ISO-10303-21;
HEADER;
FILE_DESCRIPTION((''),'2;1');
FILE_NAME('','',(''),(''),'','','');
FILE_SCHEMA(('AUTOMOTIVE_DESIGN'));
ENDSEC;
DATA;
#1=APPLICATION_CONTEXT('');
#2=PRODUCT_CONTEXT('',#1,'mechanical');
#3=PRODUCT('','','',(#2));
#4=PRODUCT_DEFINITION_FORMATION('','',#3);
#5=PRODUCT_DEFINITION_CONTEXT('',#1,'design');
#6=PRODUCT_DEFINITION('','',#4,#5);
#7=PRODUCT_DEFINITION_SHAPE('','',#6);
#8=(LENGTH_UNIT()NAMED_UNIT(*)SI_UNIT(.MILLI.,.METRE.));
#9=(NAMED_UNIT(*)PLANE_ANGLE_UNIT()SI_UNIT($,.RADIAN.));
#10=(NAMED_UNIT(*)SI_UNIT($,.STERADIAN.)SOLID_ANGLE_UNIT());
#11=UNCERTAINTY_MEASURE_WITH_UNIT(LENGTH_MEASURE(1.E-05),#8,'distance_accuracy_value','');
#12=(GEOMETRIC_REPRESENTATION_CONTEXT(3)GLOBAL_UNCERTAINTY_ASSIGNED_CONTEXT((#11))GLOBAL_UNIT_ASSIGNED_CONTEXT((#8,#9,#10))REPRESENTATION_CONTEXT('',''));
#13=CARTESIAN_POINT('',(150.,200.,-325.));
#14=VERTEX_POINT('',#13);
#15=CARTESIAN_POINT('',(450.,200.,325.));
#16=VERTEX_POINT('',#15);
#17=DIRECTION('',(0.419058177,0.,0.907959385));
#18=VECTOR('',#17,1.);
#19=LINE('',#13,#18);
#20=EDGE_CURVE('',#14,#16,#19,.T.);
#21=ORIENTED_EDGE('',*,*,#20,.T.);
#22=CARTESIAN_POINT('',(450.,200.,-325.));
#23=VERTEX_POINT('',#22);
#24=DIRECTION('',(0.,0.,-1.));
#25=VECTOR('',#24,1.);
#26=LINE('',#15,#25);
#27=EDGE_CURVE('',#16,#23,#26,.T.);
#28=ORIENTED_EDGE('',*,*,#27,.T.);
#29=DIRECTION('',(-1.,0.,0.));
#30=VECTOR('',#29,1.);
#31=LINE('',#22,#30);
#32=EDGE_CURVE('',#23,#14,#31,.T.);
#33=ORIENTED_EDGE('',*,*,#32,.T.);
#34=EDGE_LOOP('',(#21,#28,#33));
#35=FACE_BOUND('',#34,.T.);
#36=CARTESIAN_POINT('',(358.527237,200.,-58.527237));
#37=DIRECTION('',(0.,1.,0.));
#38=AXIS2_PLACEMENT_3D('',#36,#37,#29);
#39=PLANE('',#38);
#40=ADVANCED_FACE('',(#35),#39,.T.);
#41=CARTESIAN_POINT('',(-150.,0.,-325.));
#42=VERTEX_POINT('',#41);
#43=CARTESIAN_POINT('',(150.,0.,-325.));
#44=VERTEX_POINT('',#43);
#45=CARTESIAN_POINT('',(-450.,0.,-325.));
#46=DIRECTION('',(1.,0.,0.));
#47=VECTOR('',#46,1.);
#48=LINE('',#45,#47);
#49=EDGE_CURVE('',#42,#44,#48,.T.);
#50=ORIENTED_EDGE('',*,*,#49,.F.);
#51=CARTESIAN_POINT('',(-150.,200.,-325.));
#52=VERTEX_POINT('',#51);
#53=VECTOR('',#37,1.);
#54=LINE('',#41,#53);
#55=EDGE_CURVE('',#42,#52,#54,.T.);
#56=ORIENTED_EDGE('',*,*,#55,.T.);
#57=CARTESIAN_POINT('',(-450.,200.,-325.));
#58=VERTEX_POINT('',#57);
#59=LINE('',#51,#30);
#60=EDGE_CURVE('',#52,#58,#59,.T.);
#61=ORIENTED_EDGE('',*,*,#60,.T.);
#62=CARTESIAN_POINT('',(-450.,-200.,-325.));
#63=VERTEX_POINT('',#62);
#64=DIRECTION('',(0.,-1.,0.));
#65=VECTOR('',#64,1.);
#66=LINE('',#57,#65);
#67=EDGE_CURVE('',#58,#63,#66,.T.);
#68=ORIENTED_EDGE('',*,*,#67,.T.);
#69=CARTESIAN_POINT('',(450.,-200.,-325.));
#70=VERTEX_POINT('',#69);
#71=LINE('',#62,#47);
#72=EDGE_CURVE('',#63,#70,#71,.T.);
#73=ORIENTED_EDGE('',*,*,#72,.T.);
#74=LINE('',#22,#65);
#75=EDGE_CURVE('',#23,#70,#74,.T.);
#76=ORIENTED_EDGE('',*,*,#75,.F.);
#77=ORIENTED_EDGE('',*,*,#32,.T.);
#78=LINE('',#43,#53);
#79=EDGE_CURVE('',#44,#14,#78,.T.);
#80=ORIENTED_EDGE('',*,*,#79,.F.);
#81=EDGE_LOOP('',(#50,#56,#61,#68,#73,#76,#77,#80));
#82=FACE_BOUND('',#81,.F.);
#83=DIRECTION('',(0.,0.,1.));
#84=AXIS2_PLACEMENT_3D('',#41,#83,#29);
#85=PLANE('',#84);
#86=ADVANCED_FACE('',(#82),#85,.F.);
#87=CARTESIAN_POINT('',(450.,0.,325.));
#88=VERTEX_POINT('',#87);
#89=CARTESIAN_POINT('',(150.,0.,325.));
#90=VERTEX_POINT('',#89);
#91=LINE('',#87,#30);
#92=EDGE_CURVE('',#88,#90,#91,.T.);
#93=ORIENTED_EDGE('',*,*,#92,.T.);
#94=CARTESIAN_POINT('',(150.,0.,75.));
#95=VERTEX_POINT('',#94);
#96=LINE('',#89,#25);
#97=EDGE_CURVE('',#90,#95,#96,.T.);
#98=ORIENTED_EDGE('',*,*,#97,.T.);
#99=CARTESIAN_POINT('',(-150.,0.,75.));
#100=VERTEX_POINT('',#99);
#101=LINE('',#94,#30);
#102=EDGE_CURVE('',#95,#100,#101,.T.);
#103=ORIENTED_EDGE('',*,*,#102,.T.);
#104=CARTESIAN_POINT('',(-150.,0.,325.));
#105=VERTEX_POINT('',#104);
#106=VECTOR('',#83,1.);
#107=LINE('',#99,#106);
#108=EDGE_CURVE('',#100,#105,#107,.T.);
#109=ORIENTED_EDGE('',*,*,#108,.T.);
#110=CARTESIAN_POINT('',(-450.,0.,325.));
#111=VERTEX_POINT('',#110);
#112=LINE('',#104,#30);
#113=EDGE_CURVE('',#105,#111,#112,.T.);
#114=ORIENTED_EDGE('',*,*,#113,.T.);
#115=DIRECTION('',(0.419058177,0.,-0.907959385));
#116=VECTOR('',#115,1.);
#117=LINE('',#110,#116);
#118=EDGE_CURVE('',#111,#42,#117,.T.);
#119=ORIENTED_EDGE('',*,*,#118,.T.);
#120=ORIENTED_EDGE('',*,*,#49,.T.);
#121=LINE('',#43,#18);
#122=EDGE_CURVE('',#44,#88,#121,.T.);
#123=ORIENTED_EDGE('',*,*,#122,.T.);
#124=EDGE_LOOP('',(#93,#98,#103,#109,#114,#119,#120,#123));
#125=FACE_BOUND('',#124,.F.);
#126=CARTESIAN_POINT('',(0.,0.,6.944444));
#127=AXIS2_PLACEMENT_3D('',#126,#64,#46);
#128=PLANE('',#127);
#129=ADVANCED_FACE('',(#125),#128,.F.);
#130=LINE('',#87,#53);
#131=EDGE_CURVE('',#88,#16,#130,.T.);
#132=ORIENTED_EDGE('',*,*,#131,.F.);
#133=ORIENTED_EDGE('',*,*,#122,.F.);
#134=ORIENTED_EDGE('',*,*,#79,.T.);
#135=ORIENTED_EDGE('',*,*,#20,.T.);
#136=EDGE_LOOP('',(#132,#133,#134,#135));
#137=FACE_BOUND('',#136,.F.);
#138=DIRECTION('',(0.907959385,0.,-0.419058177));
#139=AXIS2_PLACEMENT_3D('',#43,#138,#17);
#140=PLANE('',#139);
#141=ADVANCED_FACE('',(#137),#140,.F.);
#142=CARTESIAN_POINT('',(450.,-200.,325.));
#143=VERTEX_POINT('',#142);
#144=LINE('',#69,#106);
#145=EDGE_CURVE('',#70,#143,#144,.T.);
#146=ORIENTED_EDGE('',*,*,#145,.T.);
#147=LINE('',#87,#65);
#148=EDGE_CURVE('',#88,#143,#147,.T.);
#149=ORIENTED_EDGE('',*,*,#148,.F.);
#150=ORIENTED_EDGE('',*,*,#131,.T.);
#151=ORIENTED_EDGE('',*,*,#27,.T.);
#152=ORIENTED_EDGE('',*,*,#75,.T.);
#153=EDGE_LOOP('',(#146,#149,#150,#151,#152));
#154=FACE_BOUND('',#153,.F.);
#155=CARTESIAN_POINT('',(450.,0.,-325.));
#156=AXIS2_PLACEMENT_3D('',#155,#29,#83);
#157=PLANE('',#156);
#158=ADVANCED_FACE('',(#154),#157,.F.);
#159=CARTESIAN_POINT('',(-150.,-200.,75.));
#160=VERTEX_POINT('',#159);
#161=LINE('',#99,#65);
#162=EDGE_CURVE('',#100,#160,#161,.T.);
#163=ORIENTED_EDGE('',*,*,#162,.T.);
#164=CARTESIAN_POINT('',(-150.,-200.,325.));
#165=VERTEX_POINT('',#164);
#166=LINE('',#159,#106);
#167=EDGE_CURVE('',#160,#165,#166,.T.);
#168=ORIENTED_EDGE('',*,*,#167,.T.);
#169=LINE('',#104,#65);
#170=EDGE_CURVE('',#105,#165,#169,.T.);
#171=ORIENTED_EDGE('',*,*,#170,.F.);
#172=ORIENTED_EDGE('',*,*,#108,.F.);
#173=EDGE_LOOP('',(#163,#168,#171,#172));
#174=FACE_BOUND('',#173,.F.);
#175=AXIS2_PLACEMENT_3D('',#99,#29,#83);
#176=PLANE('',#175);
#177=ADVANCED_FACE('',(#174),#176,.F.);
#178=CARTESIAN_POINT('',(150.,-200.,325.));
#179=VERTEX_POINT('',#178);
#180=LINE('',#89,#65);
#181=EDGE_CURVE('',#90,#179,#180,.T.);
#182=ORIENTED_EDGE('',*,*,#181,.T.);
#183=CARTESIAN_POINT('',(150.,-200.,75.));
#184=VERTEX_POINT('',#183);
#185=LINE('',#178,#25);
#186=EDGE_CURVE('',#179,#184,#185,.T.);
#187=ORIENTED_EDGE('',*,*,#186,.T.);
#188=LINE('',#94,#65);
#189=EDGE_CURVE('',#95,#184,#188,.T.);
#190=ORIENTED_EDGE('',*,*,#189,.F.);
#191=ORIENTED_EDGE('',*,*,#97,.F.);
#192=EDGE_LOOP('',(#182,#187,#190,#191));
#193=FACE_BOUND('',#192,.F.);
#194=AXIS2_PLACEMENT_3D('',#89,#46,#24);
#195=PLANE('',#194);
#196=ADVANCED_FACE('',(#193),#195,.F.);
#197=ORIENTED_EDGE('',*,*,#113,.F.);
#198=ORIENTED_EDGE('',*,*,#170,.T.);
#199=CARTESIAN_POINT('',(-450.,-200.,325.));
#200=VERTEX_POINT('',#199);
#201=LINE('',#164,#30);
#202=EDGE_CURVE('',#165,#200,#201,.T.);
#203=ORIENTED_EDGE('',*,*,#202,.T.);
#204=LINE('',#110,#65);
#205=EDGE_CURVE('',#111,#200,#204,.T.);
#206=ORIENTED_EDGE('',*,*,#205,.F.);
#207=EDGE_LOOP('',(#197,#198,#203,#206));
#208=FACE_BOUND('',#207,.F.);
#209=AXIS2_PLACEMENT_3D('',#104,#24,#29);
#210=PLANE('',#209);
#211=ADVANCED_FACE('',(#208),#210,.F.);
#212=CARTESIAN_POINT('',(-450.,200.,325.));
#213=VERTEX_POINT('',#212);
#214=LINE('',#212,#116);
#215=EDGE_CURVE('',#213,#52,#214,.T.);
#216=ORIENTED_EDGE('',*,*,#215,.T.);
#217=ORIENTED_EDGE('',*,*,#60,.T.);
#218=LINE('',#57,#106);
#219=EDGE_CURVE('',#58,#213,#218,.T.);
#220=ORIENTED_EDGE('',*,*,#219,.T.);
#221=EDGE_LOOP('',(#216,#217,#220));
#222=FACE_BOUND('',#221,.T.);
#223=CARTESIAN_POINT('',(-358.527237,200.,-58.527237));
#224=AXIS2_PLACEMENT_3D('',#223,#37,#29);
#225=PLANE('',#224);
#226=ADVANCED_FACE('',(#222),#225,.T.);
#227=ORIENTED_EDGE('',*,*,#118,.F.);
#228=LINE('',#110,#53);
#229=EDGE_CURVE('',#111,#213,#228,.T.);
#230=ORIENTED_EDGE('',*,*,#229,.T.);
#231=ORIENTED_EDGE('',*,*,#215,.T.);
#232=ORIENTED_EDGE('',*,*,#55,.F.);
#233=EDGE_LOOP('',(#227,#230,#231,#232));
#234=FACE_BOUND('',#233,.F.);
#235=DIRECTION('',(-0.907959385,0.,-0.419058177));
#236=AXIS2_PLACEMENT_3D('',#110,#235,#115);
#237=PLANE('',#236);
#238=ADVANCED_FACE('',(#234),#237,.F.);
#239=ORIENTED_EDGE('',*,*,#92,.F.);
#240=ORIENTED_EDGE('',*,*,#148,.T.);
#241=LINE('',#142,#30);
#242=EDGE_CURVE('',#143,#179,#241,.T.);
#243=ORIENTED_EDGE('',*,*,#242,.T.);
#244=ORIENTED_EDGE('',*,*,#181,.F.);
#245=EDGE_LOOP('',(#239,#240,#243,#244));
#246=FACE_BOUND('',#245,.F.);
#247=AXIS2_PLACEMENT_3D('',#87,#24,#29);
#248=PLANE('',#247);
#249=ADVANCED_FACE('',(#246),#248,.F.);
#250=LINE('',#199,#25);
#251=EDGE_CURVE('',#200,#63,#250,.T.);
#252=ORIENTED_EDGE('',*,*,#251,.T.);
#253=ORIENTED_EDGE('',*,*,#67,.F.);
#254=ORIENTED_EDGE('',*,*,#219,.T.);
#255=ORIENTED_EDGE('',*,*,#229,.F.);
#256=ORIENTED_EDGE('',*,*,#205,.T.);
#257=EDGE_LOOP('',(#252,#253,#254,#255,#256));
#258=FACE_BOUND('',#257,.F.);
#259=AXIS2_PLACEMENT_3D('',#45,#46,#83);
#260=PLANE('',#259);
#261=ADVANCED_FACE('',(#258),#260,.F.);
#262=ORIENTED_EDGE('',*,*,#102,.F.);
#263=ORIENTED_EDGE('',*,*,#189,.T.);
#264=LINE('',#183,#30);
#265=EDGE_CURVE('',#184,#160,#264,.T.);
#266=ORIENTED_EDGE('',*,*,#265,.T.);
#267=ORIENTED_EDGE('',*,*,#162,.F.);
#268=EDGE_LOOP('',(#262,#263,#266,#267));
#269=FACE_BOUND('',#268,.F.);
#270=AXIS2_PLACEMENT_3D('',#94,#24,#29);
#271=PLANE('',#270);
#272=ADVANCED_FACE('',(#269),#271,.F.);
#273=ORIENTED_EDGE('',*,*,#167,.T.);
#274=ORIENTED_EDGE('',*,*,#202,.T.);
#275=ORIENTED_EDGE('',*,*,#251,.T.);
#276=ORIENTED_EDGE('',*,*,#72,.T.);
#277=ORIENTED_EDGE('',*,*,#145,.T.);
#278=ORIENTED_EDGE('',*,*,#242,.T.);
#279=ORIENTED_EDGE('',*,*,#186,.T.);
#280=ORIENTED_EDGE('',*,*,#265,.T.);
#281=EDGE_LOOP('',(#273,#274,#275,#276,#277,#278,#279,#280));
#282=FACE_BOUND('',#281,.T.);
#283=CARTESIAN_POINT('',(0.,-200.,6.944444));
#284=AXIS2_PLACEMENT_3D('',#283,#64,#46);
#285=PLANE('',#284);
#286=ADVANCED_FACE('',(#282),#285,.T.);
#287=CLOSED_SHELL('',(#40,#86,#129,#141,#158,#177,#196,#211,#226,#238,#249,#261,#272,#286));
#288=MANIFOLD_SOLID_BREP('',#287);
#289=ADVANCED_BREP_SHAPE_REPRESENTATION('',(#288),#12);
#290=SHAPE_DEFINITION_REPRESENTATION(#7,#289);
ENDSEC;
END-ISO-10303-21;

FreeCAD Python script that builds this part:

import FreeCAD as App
import Part
import Sketcher

V = App.Vector
Q = App.Units.Quantity

doc = App.newDocument("Part")
body = doc.addObject("PartDesign::Body", "Body")

# Sketch on XZ plane
sketch1 = body.newObject("Sketcher::SketchObject", "Sketch")
sketch1.AttachmentSupport = (doc.getObject("XZ_Plane"), [""])
sketch1.MapMode = "FlatFace"
sketch1.addGeometry(Part.LineSegment(V(-150, 325, 0), V(-450, 325, 0)), False)
sketch1.addGeometry(Part.LineSegment(V(-450, 325, 0), V(-450, -325, 0)), False)
sketch1.addGeometry(Part.LineSegment(V(-450, -325, 0), V(450, -325, 0)), False)
sketch1.addGeometry(Part.LineSegment(V(450, -325, 0), V(450, 325, 0)), False)
sketch1.addGeometry(Part.LineSegment(V(450, 325, 0), V(150, 325, 0)), False)
sketch1.addGeometry(Part.LineSegment(V(150, 325, 0), V(150, 75, 0)), False)
sketch1.addGeometry(Part.LineSegment(V(150, 75, 0), V(-150, 75, 0)), False)
sketch1.addGeometry(Part.LineSegment(V(-150, 75, 0), V(-150, 325, 0)), False)
sketch1.addConstraint(Sketcher.Constraint("Coincident", 0, 2, 1, 1))
sketch1.addConstraint(Sketcher.Constraint("Coincident", 1, 2, 2, 1))
sketch1.addConstraint(Sketcher.Constraint("Coincident", 2, 2, 3, 1))
sketch1.addConstraint(Sketcher.Constraint("Coincident", 3, 2, 4, 1))
sketch1.addConstraint(Sketcher.Constraint("Coincident", 4, 2, 5, 1))
sketch1.addConstraint(Sketcher.Constraint("Coincident", 5, 2, 6, 1))
sketch1.addConstraint(Sketcher.Constraint("Coincident", 6, 2, 7, 1))
sketch1.addConstraint(Sketcher.Constraint("Coincident", 7, 2, 0, 1))
sketch1.addConstraint(Sketcher.Constraint("Horizontal", 0))
sketch1.addConstraint(Sketcher.Constraint("Vertical", 1))
sketch1.addConstraint(Sketcher.Constraint("Horizontal", 2))
sketch1.addConstraint(Sketcher.Constraint("Vertical", 3))
sketch1.addConstraint(Sketcher.Constraint("Horizontal", 4))
sketch1.addConstraint(Sketcher.Constraint("Vertical", 5))
sketch1.addConstraint(Sketcher.Constraint("Horizontal", 6))
sketch1.addConstraint(Sketcher.Constraint("Vertical", 7))
sketch1.addConstraint(Sketcher.Constraint("Symmetric", 0, 2, 2, 2, -1, 1))
sketch1.addConstraint(Sketcher.Constraint("Symmetric", 4, 2, 7, 2, -2))
sketch1.addConstraint(Sketcher.Constraint("Equal", 4, 6))
sketch1.addConstraint(Sketcher.Constraint("DistanceX", 0, 2, 0, 1, Q("300 mm")))
sketch1.addConstraint(Sketcher.Constraint("DistanceY", 1, 2, 1, 1, Q("650 mm")))
sketch1.addConstraint(Sketcher.Constraint("DistanceY", 5, 2, 5, 1, Q("250 mm")))
pad1 = body.newObject("PartDesign::Pad", "Pad")
pad1.Profile = sketch1
pad1.Length = 200

# Sketch on XZ plane
sketch2 = body.newObject("Sketcher::SketchObject", "Sketch001")
sketch2.AttachmentSupport = (doc.getObject("XZ_Plane"), [""])
sketch2.MapMode = "FlatFace"
sketch2.addGeometry(Part.LineSegment(V(-450, -325, 0), V(-450, 325, 0)), False)
sketch2.addGeometry(Part.LineSegment(V(-450, 325, 0), V(-150, -325, 0)), False)
sketch2.addGeometry(Part.LineSegment(V(-150, -325, 0), V(-450, -325, 0)), False)
sketch2.addGeometry(Part.LineSegment(V(150, -325, 0), V(450, 325, 0)), False)
sketch2.addGeometry(Part.LineSegment(V(450, 325, 0), V(450, -325, 0)), False)
sketch2.addGeometry(Part.LineSegment(V(450, -325, 0), V(150, -325, 0)), False)
sketch2.addConstraint(Sketcher.Constraint("Coincident", 0, 2, 1, 1))
sketch2.addConstraint(Sketcher.Constraint("Coincident", 1, 2, 2, 1))
sketch2.addConstraint(Sketcher.Constraint("Coincident", 2, 2, 0, 1))
sketch2.addConstraint(Sketcher.Constraint("Coincident", 3, 2, 4, 1))
sketch2.addConstraint(Sketcher.Constraint("Coincident", 4, 2, 5, 1))
sketch2.addConstraint(Sketcher.Constraint("Coincident", 5, 2, 3, 1))
sketch2.addConstraint(Sketcher.Constraint("Vertical", 0))
sketch2.addConstraint(Sketcher.Constraint("Horizontal", 2))
sketch2.addConstraint(Sketcher.Constraint("Vertical", 4))
sketch2.addConstraint(Sketcher.Constraint("Horizontal", 5))
sketch2.addConstraint(Sketcher.Constraint("Symmetric", 2, 2, 3, 2, -1, 1))
sketch2.addConstraint(Sketcher.Constraint("Symmetric", 1, 2, 5, 2, -2))
sketch2.addConstraint(Sketcher.Constraint("Horizontal", 0, 2, 3, 2))
sketch2.addConstraint(Sketcher.Constraint("DistanceX", 2, 2, 2, 1, Q("300 mm")))
sketch2.addConstraint(Sketcher.Constraint("DistanceY", 0, 1, 0, 2, Q("650 mm")))
sketch2.addConstraint(Sketcher.Constraint("DistanceX", 0, 2, -1, 1, Q("450 mm")))
pad2 = body.newObject("PartDesign::Pad", "Pad001")
pad2.Profile = sketch2
pad2.Length = 200
pad2.Reversed = True

doc.recompute()
